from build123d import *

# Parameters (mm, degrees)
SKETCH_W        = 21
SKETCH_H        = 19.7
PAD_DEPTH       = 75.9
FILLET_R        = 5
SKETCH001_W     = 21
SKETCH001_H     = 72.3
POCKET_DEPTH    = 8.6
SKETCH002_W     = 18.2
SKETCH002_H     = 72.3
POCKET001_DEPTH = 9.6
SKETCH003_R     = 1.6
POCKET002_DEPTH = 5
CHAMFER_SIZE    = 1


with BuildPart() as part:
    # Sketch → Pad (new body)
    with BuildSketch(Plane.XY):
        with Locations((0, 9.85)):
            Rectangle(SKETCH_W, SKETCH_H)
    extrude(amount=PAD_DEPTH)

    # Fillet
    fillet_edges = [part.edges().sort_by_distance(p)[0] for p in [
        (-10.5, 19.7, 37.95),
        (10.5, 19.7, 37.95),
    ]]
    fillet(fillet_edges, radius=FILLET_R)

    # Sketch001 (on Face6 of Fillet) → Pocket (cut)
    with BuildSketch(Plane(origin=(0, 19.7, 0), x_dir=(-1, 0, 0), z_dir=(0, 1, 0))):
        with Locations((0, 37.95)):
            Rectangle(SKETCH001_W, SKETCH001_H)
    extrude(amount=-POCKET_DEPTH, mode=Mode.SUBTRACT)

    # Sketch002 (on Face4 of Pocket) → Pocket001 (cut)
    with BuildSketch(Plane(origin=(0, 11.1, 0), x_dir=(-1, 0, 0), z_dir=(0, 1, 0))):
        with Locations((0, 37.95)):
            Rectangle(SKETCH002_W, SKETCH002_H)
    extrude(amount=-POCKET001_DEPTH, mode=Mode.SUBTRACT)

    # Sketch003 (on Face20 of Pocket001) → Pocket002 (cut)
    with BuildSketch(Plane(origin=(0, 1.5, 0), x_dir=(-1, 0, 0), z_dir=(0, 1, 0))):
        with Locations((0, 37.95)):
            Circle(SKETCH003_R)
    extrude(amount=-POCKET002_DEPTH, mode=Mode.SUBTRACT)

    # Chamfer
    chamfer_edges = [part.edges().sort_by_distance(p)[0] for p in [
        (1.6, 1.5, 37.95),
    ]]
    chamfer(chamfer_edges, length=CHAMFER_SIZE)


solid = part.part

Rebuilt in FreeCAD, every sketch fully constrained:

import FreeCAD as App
import Part
import Sketcher
Q = App.Units.Quantity


def edges_at(feature, points):
    """Names of the edges that pass closest to the given points."""
    edges = feature.Shape.Edges
    near = lambda p: min(range(len(edges)), key=lambda i: edges[i].distToShape(Part.Vertex(*p))[0])
    return sorted({f"Edge{near(p) + 1}" for p in points})


def add_polygon(sketch, points):
    """Adds a closed chain of lines whose ends are joined by coincident constraints."""
    first, n = sketch.GeometryCount, len(points)
    for a, b in zip(points, points[1:] + points[:1]):
        sketch.addGeometry(Part.LineSegment(App.Vector(*a, 0), App.Vector(*b, 0)), False)
    for i in range(n):
        sketch.addConstraint(Sketcher.Constraint("Coincident", first + i, 2, first + (i + 1) % n, 1))

doc = App.newDocument("Part")
body = doc.addObject("PartDesign::Body", "Body")

# Sketch on XY plane
sketch1 = doc.addObject("Sketcher::SketchObject", "Sketch")
body.addObject(sketch1)
sketch1.AttachmentSupport = (doc.XY_Plane, [""])
sketch1.MapMode = "FlatFace"
add_polygon(sketch1, [(-10, 20), (-10, 0), (10, 0), (10, 20)])  # lines 0-3
sketch1.addConstraint([
    Sketcher.Constraint("Vertical", 0),
    Sketcher.Constraint("Horizontal", 1),
    Sketcher.Constraint("Vertical", 2),
    Sketcher.Constraint("Horizontal", 3),
    Sketcher.Constraint("Symmetric", 0, 2, 1, 2, -1, 1),
    Sketcher.Constraint("DistanceX", 1, 1, 1, 2, Q("21 mm")),
    Sketcher.Constraint("DistanceY", 0, 2, 0, 1, Q("19.7 mm")),
])
pad1 = doc.addObject("PartDesign::Pad", "Pad")
body.addObject(pad1)
pad1.Profile = sketch1
pad1.Length = 75.9
doc.recompute()

fillet = doc.addObject("PartDesign::Fillet", "Fillet")
body.addObject(fillet)
fillet.Base = (pad1, edges_at(pad1, [(-10.5, 19.7, 37.95), (10.5, 19.7, 37.95)]))
fillet.Radius = 5

# Sketch on XZ plane
sketch2 = doc.addObject("Sketcher::SketchObject", "Sketch001")
body.addObject(sketch2)
sketch2.AttachmentSupport = (doc.XZ_Plane, [""])
sketch2.MapMode = "FlatFace"
sketch2.AttachmentOffset = App.Placement(App.Vector(0, 0, -19.7), App.Rotation())
add_polygon(sketch2, [(10, 74), (10, 2), (-10, 2), (-10, 74)])  # lines 0-3
sketch2.addConstraint([
    Sketcher.Constraint("Vertical", 0),
    Sketcher.Constraint("Horizontal", 1),
    Sketcher.Constraint("Vertical", 2),
    Sketcher.Constraint("Horizontal", 3),
    Sketcher.Constraint("DistanceX", 1, 2, 1, 1, Q("21 mm")),
    Sketcher.Constraint("DistanceY", 0, 2, 0, 1, Q("72.3 mm")),
    Sketcher.Constraint("DistanceX", -1, 1, 0, 2, Q("10.5 mm")),
    Sketcher.Constraint("DistanceY", -1, 1, 0, 2, Q("1.8 mm")),
])
pocket1 = doc.addObject("PartDesign::Pocket", "Pocket")
body.addObject(pocket1)
pocket1.Profile = sketch2
pocket1.Length = 8.6
pocket1.Reversed = True

# Sketch on XZ plane
sketch3 = doc.addObject("Sketcher::SketchObject", "Sketch002")
body.addObject(sketch3)
sketch3.AttachmentSupport = (doc.XZ_Plane, [""])
sketch3.MapMode = "FlatFace"
sketch3.AttachmentOffset = App.Placement(App.Vector(0, 0, -11.1), App.Rotation())
add_polygon(sketch3, [(9, 74), (9, 2), (-9, 2), (-9, 74)])  # lines 0-3
sketch3.addConstraint([
    Sketcher.Constraint("Vertical", 0),
    Sketcher.Constraint("Horizontal", 1),
    Sketcher.Constraint("Vertical", 2),
    Sketcher.Constraint("Horizontal", 3),
    Sketcher.Constraint("DistanceX", 1, 2, 1, 1, Q("18.2 mm")),
    Sketcher.Constraint("DistanceY", 0, 2, 0, 1, Q("72.3 mm")),
    Sketcher.Constraint("DistanceX", -1, 1, 0, 2, Q("9.1 mm")),
    Sketcher.Constraint("DistanceY", -1, 1, 0, 2, Q("1.8 mm")),
])
pocket2 = doc.addObject("PartDesign::Pocket", "Pocket001")
body.addObject(pocket2)
pocket2.Profile = sketch3
pocket2.Length = 9.6
pocket2.Reversed = True

# Sketch on XZ plane
sketch4 = doc.addObject("Sketcher::SketchObject", "Sketch003")
body.addObject(sketch4)
sketch4.AttachmentSupport = (doc.XZ_Plane, [""])
sketch4.MapMode = "FlatFace"
sketch4.AttachmentOffset = App.Placement(App.Vector(0, 0, -1.5), App.Rotation())
sketch4.addGeometry(Part.Circle(App.Vector(0, 38, 0), App.Vector(0, 0, 1), 1.6), False)
sketch4.addConstraint([
    Sketcher.Constraint("PointOnObject", 0, 3, -2),
    Sketcher.Constraint("Diameter", 0, Q("3.2 mm")),
    Sketcher.Constraint("DistanceY", -1, 1, 0, 3, Q("37.95 mm")),
])
pocket3 = doc.addObject("PartDesign::Pocket", "Pocket002")
body.addObject(pocket3)
pocket3.Profile = sketch4
pocket3.Length = 5
pocket3.Reversed = True
doc.recompute()

chamfer = doc.addObject("PartDesign::Chamfer", "Chamfer")
body.addObject(chamfer)
chamfer.Base = (pocket3, edges_at(pocket3, [(1.6, 1.5, 37.95)]))
chamfer.Size = 1

doc.recompute()
